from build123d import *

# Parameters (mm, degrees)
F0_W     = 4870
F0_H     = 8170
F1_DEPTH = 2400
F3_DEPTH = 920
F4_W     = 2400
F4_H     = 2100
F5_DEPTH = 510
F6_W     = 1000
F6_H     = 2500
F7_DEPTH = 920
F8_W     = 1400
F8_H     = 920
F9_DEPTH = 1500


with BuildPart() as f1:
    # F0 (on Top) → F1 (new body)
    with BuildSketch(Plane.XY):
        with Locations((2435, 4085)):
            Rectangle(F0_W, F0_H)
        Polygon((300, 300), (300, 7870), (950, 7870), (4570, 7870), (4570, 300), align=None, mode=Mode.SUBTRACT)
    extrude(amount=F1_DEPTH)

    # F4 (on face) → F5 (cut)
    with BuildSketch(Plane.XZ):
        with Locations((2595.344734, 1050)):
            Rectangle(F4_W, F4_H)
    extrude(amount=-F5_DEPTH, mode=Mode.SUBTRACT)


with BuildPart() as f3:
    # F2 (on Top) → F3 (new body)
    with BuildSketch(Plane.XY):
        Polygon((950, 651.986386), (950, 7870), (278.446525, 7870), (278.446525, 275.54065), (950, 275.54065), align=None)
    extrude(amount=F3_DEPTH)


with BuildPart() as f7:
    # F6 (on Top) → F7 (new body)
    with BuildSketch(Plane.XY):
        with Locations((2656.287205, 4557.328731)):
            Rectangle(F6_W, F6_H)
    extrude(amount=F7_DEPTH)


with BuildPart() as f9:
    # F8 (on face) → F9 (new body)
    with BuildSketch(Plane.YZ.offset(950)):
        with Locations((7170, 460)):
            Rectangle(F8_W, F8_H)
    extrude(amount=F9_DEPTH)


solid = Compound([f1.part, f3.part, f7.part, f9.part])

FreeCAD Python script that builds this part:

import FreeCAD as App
import Part
import Sketcher
from FreeCAD import Vector
Q = App.Units.Quantity

doc = App.newDocument("Part")
params = doc.addObject("Spreadsheet::Sheet", "Params")
for row, (alias, value) in enumerate([
    ("sketch1_width", "4870 mm"),
    ("sketch1_width2", "4270 mm"),
    ("sketch1_height", "8170 mm"),
    ("sketch1_height2", "7570 mm"),
    ("pad1_length", "2400 mm"),
    ("sketch2_width", "2400 mm"),
    ("sketch2_height", "2100 mm"),
    ("pocket1_length", "510 mm"),
    ("pad2_length", "920 mm"),
    ("sketch4_width", "1000 mm"),
    ("sketch4_height", "2500 mm"),
    ("pad3_length", "920 mm"),
    ("sketch5_width", "1400 mm"),
    ("sketch5_height", "920 mm"),
    ("pad4_length", "1500 mm"),
], start=1):
    params.set(f"A{row}", alias)
    params.set(f"B{row}", "=" + value)
    params.setAlias(f"B{row}", alias)

body = doc.addObject("PartDesign::Body", "Body")

# Sketch on XY plane
sketch1 = doc.addObject("Sketcher::SketchObject", "Sketch")
body.addObject(sketch1)
sketch1.AttachmentSupport = (doc.XY_Plane, [""])
sketch1.MapMode = "FlatFace"
sketch1.addGeometry([
    Part.LineSegment(Vector(0, 8170, 0), Vector(0, 0, 0)),  # 0
    Part.LineSegment(Vector(0, 0, 0), Vector(4870, 0, 0)),  # 1
    Part.LineSegment(Vector(4870, 0, 0), Vector(4870, 8170, 0)),  # 2
    Part.LineSegment(Vector(4870, 8170, 0), Vector(0, 8170, 0)),  # 3
    Part.LineSegment(Vector(4570, 300, 0), Vector(300, 300, 0)),  # 4
    Part.LineSegment(Vector(300, 300, 0), Vector(300, 7870, 0)),  # 5
    Part.LineSegment(Vector(300, 7870, 0), Vector(4570, 7870, 0)),  # 6
    Part.LineSegment(Vector(4570, 7870, 0), Vector(4570, 300, 0)),  # 7
], False)
sketch1.addConstraint([
    Sketcher.Constraint("Coincident", 0, 2, 1, 1),
    Sketcher.Constraint("Coincident", 1, 2, 2, 1),
    Sketcher.Constraint("Coincident", 2, 2, 3, 1),
    Sketcher.Constraint("Coincident", 3, 2, 0, 1),
    Sketcher.Constraint("Coincident", 4, 2, 5, 1),
    Sketcher.Constraint("Coincident", 5, 2, 6, 1),
    Sketcher.Constraint("Coincident", 6, 2, 7, 1),
    Sketcher.Constraint("Coincident", 7, 2, 4, 1),
    Sketcher.Constraint("Vertical", 0),
    Sketcher.Constraint("Horizontal", 1),
    Sketcher.Constraint("Vertical", 2),
    Sketcher.Constraint("Horizontal", 3),
    Sketcher.Constraint("Horizontal", 4),
    Sketcher.Constraint("Vertical", 5),
    Sketcher.Constraint("Horizontal", 6),
    Sketcher.Constraint("Vertical", 7),
    Sketcher.Constraint("Coincident", 0, 2, -1, 1),
    Sketcher.Constraint("DistanceX", 1, 1, 1, 2, Q("4870 mm")),
    Sketcher.Constraint("DistanceX", 4, 2, 4, 1, Q("4270 mm")),
    Sketcher.Constraint("DistanceY", 0, 2, 0, 1, Q("8170 mm")),
    Sketcher.Constraint("DistanceY", 5, 1, 5, 2, Q("7570 mm")),
    Sketcher.Constraint("DistanceX", -1, 1, 4, 2, Q("300 mm")),
    Sketcher.Constraint("DistanceY", -1, 1, 4, 2, Q("300 mm")),
])
sketch1.setExpression("Constraints[17]", "Params.sketch1_width")
sketch1.setExpression("Constraints[18]", "Params.sketch1_width2")
sketch1.setExpression("Constraints[19]", "Params.sketch1_height")
sketch1.setExpression("Constraints[20]", "Params.sketch1_height2")
pad1 = doc.addObject("PartDesign::Pad", "Pad")
body.addObject(pad1)
pad1.Profile = sketch1
pad1.setExpression("Length", "Params.pad1_length")

# Sketch on XZ plane
sketch2 = doc.addObject("Sketcher::SketchObject", "Sketch001")
body.addObject(sketch2)
sketch2.AttachmentSupport = (doc.XZ_Plane, [""])
sketch2.MapMode = "FlatFace"
sketch2.addGeometry([
    Part.LineSegment(Vector(1395, 2100, 0), Vector(1395, 0, 0)),
    Part.LineSegment(Vector(1395, 0, 0), Vector(3795, 0, 0)),
    Part.LineSegment(Vector(3795, 0, 0), Vector(3795, 2100, 0)),
    Part.LineSegment(Vector(3795, 2100, 0), Vector(1395, 2100, 0)),
], False)
sketch2.addConstraint([
    Sketcher.Constraint("Coincident", 0, 2, 1, 1),
    Sketcher.Constraint("Coincident", 1, 2, 2, 1),
    Sketcher.Constraint("Coincident", 2, 2, 3, 1),
    Sketcher.Constraint("Coincident", 3, 2, 0, 1),
    Sketcher.Constraint("Vertical", 0),
    Sketcher.Constraint("Horizontal", 1),
    Sketcher.Constraint("Vertical", 2),
    Sketcher.Constraint("Horizontal", 3),
    Sketcher.Constraint("PointOnObject", 0, 2, -1),
    Sketcher.Constraint("DistanceX", 1, 1, 1, 2, Q("2400 mm")),
    Sketcher.Constraint("DistanceY", 0, 2, 0, 1, Q("2100 mm")),
    Sketcher.Constraint("DistanceX", -1, 1, 0, 2, Q("1395.344734 mm")),
])
sketch2.setExpression("Constraints[9]", "Params.sketch2_width")
sketch2.setExpression("Constraints[10]", "Params.sketch2_height")
pocket1 = doc.addObject("PartDesign::Pocket", "Pocket")
body.addObject(pocket1)
pocket1.Profile = sketch2
pocket1.setExpression("Length", "Params.pocket1_length")
body2 = doc.addObject("PartDesign::Body", "Body001")

# Sketch on XY plane
sketch3 = doc.addObject("Sketcher::SketchObject", "Sketch002")
body2.addObject(sketch3)
sketch3.AttachmentSupport = (doc.getObject("XY_Plane001"), [""])
sketch3.MapMode = "FlatFace"
sketch3.addGeometry([
    Part.LineSegment(Vector(950, 7870, 0), Vector(278, 7870, 0)),
    Part.LineSegment(Vector(278, 7870, 0), Vector(278, 276, 0)),
    Part.LineSegment(Vector(278, 276, 0), Vector(950, 276, 0)),
    Part.LineSegment(Vector(950, 276, 0), Vector(950, 7870, 0)),
], False)
sketch3.addConstraint([
    Sketcher.Constraint("Coincident", 0, 2, 1, 1),
    Sketcher.Constraint("Coincident", 1, 2, 2, 1),
    Sketcher.Constraint("Coincident", 2, 2, 3, 1),
    Sketcher.Constraint("Coincident", 3, 2, 0, 1),
    Sketcher.Constraint("Horizontal", 0),
    Sketcher.Constraint("Vertical", 1),
    Sketcher.Constraint("Horizontal", 2),
    Sketcher.Constraint("Vertical", 3),
    Sketcher.Constraint("DistanceY", -1, 1, 0, 2, Q("7870 mm")),
    Sketcher.Constraint("DistanceX", -1, 1, 2, 2, Q("950 mm")),
    Sketcher.Constraint("DistanceY", 1, 2, 1, 1, Q("7594.45935 mm")),
    Sketcher.Constraint("DistanceX", 0, 2, 0, 1, Q("671.553475 mm")),
])
pad2 = doc.addObject("PartDesign::Pad", "Pad001")
body2.addObject(pad2)
pad2.Profile = sketch3
pad2.setExpression("Length", "Params.pad2_length")
body3 = doc.addObject("PartDesign::Body", "Body002")

# Sketch on XY plane
sketch4 = doc.addObject("Sketcher::SketchObject", "Sketch003")
body3.addObject(sketch4)
sketch4.AttachmentSupport = (doc.getObject("XY_Plane002"), [""])
sketch4.MapMode = "FlatFace"
sketch4.addGeometry([
    Part.LineSegment(Vector(2156, 5807, 0), Vector(2156, 3307, 0)),
    Part.LineSegment(Vector(2156, 3307, 0), Vector(3156, 3307, 0)),
    Part.LineSegment(Vector(3156, 3307, 0), Vector(3156, 5807, 0)),
    Part.LineSegment(Vector(3156, 5807, 0), Vector(2156, 5807, 0)),
], False)
sketch4.addConstraint([
    Sketcher.Constraint("Coincident", 0, 2, 1, 1),
    Sketcher.Constraint("Coincident", 1, 2, 2, 1),
    Sketcher.Constraint("Coincident", 2, 2, 3, 1),
    Sketcher.Constraint("Coincident", 3, 2, 0, 1),
    Sketcher.Constraint("Vertical", 0),
    Sketcher.Constraint("Horizontal", 1),
    Sketcher.Constraint("Vertical", 2),
    Sketcher.Constraint("Horizontal", 3),
    Sketcher.Constraint("DistanceX", 1, 1, 1, 2, Q("1000 mm")),
    Sketcher.Constraint("DistanceY", 0, 2, 0, 1, Q("2500 mm")),
    Sketcher.Constraint("DistanceY", -1, 1, 0, 2, Q("3307.328731 mm")),
    Sketcher.Constraint("DistanceX", -1, 1, 0, 2, Q("2156.287205 mm")),
])
sketch4.setExpression("Constraints[8]", "Params.sketch4_width")
sketch4.setExpression("Constraints[9]", "Params.sketch4_height")
pad3 = doc.addObject("PartDesign::Pad", "Pad002")
body3.addObject(pad3)
pad3.Profile = sketch4
pad3.setExpression("Length", "Params.pad3_length")
body4 = doc.addObject("PartDesign::Body", "Body003")

# Sketch on YZ plane
sketch5 = doc.addObject("Sketcher::SketchObject", "Sketch004")
body4.addObject(sketch5)
sketch5.AttachmentSupport = (doc.getObject("YZ_Plane003"), [""])
sketch5.MapMode = "FlatFace"
sketch5.AttachmentOffset = App.Placement(Vector(0, 0, 950), App.Rotation())
sketch5.addGeometry([
    Part.LineSegment(Vector(6470, 920, 0), Vector(6470, 0, 0)),
    Part.LineSegment(Vector(6470, 0, 0), Vector(7870, 0, 0)),
    Part.LineSegment(Vector(7870, 0, 0), Vector(7870, 920, 0)),
    Part.LineSegment(Vector(7870, 920, 0), Vector(6470, 920, 0)),
], False)
sketch5.addConstraint([
    Sketcher.Constraint("Coincident", 0, 2, 1, 1),
    Sketcher.Constraint("Coincident", 1, 2, 2, 1),
    Sketcher.Constraint("Coincident", 2, 2, 3, 1),
    Sketcher.Constraint("Coincident", 3, 2, 0, 1),
    Sketcher.Constraint("Vertical", 0),
    Sketcher.Constraint("Horizontal", 1),
    Sketcher.Constraint("Vertical", 2),
    Sketcher.Constraint("Horizontal", 3),
    Sketcher.Constraint("PointOnObject", 0, 2, -1),
    Sketcher.Constraint("DistanceX", 1, 1, 1, 2, Q("1400 mm")),
    Sketcher.Constraint("DistanceY", 0, 2, 0, 1, Q("920 mm")),
    Sketcher.Constraint("DistanceX", -1, 1, 0, 2, Q("6470 mm")),
])
sketch5.setExpression("Constraints[9]", "Params.sketch5_width")
sketch5.setExpression("Constraints[10]", "Params.sketch5_height")
pad4 = doc.addObject("PartDesign::Pad", "Pad003")
body4.addObject(pad4)
pad4.Profile = sketch5
pad4.setExpression("Length", "Params.pad4_length")

doc.recompute()
